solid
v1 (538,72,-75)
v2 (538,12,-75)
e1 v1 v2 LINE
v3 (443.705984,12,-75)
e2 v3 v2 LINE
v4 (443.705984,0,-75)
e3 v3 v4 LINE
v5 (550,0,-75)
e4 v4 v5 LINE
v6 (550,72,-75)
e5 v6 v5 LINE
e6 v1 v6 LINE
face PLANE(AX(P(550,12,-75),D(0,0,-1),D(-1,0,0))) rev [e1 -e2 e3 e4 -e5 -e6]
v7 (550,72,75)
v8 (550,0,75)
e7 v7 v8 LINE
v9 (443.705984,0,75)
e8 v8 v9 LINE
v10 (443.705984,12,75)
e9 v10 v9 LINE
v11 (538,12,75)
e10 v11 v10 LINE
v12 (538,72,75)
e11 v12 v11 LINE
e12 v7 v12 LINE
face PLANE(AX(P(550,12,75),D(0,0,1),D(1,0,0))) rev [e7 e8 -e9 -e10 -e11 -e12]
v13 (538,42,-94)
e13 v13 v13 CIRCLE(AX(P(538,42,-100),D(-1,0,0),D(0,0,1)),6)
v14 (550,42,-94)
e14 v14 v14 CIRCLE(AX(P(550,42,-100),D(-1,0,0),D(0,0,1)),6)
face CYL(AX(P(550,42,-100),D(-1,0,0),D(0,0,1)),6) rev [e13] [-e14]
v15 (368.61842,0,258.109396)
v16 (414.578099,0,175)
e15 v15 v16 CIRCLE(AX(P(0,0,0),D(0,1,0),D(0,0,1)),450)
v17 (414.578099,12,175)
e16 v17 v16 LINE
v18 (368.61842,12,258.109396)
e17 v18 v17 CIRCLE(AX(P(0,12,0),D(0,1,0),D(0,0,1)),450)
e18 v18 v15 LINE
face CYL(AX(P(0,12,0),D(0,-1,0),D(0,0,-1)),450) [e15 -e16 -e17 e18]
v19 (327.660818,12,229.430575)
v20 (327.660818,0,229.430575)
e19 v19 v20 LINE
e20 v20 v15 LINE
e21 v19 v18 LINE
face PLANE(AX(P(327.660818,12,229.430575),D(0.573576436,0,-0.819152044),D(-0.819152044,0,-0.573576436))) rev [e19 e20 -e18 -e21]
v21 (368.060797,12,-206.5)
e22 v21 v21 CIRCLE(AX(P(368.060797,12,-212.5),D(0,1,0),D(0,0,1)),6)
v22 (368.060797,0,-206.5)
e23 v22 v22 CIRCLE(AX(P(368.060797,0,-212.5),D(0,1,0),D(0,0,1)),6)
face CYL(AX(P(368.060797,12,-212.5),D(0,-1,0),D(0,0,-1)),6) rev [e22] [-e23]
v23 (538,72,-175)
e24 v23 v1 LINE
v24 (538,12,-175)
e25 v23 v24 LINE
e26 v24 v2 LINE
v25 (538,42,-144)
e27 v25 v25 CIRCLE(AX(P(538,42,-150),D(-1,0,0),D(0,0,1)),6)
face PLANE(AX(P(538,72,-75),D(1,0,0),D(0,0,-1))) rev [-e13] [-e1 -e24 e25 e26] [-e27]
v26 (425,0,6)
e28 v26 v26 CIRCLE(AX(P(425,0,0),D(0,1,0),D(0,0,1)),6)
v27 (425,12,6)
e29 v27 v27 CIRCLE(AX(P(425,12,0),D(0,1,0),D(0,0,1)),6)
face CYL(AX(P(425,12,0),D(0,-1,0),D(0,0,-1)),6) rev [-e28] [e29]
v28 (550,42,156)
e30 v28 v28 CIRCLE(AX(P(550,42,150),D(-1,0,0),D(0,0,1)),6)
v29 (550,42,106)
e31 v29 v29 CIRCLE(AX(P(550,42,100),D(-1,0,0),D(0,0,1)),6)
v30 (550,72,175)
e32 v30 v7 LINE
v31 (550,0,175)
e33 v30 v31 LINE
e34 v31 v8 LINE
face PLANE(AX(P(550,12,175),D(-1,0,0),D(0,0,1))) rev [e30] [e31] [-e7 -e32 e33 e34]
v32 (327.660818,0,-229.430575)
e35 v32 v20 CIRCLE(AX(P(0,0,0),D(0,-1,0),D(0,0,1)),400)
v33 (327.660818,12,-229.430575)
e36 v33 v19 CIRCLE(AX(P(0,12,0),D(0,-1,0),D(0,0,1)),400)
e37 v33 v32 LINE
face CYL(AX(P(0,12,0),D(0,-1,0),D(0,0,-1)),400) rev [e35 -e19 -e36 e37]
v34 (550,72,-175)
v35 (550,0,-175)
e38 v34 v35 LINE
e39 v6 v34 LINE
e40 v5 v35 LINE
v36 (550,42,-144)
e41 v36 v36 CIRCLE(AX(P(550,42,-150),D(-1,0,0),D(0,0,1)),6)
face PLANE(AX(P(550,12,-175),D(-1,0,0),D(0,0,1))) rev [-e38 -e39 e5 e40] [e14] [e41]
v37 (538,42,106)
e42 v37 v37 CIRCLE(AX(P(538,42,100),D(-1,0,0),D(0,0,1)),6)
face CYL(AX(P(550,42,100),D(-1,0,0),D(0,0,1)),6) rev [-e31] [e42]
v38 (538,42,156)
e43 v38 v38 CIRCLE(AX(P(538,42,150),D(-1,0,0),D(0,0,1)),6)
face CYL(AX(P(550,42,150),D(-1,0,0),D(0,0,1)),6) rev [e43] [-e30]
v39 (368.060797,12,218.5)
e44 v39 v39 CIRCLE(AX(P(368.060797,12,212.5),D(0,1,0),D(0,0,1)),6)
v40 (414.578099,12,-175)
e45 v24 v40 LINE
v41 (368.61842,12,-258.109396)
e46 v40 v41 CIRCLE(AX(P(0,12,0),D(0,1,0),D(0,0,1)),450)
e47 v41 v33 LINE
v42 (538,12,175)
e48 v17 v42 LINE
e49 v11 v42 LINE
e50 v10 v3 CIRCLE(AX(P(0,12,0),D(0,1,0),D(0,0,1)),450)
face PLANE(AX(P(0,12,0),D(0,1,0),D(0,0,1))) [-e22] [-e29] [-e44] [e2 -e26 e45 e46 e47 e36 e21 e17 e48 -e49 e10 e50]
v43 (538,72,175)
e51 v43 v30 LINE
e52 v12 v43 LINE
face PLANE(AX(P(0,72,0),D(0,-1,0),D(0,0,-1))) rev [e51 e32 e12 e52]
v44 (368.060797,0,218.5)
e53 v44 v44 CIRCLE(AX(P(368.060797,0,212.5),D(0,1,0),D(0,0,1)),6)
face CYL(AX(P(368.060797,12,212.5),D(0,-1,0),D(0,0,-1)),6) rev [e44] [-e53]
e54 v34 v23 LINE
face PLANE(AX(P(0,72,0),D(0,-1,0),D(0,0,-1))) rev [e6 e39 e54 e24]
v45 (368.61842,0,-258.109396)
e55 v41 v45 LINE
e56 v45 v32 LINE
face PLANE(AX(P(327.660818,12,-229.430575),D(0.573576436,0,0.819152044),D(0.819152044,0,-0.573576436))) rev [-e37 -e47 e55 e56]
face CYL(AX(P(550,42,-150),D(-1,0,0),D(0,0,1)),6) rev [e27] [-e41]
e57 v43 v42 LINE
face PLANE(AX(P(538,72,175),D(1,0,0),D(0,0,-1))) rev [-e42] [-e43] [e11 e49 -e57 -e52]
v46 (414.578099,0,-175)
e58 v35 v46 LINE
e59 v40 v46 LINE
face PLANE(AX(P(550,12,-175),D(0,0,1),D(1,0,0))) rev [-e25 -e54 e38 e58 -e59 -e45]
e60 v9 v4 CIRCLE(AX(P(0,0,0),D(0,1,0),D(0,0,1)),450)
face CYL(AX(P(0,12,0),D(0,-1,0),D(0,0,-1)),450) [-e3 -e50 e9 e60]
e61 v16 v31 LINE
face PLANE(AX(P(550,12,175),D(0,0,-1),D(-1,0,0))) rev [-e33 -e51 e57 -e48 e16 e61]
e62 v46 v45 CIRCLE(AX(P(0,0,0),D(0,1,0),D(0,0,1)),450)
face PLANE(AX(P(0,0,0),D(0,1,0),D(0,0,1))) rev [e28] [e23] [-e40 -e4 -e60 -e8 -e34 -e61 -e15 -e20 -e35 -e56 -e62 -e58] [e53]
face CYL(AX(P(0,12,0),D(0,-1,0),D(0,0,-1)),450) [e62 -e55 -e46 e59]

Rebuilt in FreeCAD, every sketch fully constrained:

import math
import FreeCAD as App
import Part
import Sketcher
from FreeCAD import Vector
Q = App.Units.Quantity


def add_polygon(sketch, points):
    """Adds a closed chain of lines whose ends are joined by coincident constraints."""
    first, n = sketch.GeometryCount, len(points)
    for a, b in zip(points, points[1:] + points[:1]):
        sketch.addGeometry(Part.LineSegment(App.Vector(*a, 0), App.Vector(*b, 0)), False)
    for i in range(n):
        sketch.addConstraint(Sketcher.Constraint("Coincident", first + i, 2, first + (i + 1) % n, 1))

doc = App.newDocument("Part")
params = doc.addObject("Spreadsheet::Sheet", "Params")
for row, (alias, value) in enumerate([
    ("sketch1_diameter", "12 mm"),
    ("sketch1_radius", "450 mm"),
    ("sketch1_radius2", "400 mm"),
    ("sketch1_height", "100 mm"),
    ("pad1_length", "12 mm"),
    ("sketch2_width", "12 mm"),
    ("sketch2_height", "100 mm"),
    ("pad2_length", "60 mm"),
    ("sketch3_diameter", "12 mm"),
], start=1):
    params.set(f"A{row}", alias)
    params.set(f"B{row}", "=" + value)
    params.setAlias(f"B{row}", alias)

body = doc.addObject("PartDesign::Body", "Body")

# Sketch on XZ plane
sketch1 = doc.addObject("Sketcher::SketchObject", "Sketch")
body.addObject(sketch1)
sketch1.AttachmentSupport = (doc.XZ_Plane, [""])
sketch1.MapMode = "FlatFace"
sketch1.addGeometry([
    Part.LineSegment(Vector(550, -75, 0), Vector(550, -175, 0)),  # 0
    Part.LineSegment(Vector(550, -175, 0), Vector(415, -175, 0)),  # 1
    Part.ArcOfCircle(Part.Circle(Vector(0, 0, 0), Vector(0, 0, 1), 450), math.radians(-35), math.radians(-22.89)),  # 2
    Part.LineSegment(Vector(369, -258, 0), Vector(328, -229, 0)),  # 3
    Part.ArcOfCircle(Part.Circle(Vector(0, 0, 0), Vector(0, 0, 1), 400), math.radians(-35), math.radians(35)),  # 4
    Part.LineSegment(Vector(328, 229, 0), Vector(369, 258, 0)),  # 5
    Part.ArcOfCircle(Part.Circle(Vector(0, 0, 0), Vector(0, 0, 1), 450), math.radians(22.89), math.radians(35)),  # 6
    Part.LineSegment(Vector(415, 175, 0), Vector(550, 175, 0)),  # 7
    Part.LineSegment(Vector(550, 175, 0), Vector(550, 75, 0)),  # 8
    Part.LineSegment(Vector(550, 75, 0), Vector(444, 75, 0)),  # 9
    Part.ArcOfCircle(Part.Circle(Vector(0, 0, 0), Vector(0, 0, 1), 450), math.radians(-9.59), math.radians(9.59)),  # 10
    Part.LineSegment(Vector(444, -75, 0), Vector(550, -75, 0)),  # 11
    Part.Circle(Vector(368, 212, 0), Vector(0, 0, 1), 6),  # 12
    Part.Circle(Vector(425, 0, 0), Vector(0, 0, 1), 6),  # 13
    Part.Circle(Vector(368, -212, 0), Vector(0, 0, 1), 6),  # 14
], False)
sketch1.addConstraint([
    Sketcher.Constraint("Coincident", 0, 2, 1, 1),
    Sketcher.Constraint("Coincident", 1, 2, 2, 2),
    Sketcher.Constraint("Coincident", 2, 1, 3, 1),
    Sketcher.Constraint("Coincident", 3, 2, 4, 1),
    Sketcher.Constraint("Coincident", 4, 2, 5, 1),
    Sketcher.Constraint("Coincident", 5, 2, 6, 2),
    Sketcher.Constraint("Coincident", 6, 1, 7, 1),
    Sketcher.Constraint("Coincident", 7, 2, 8, 1),
    Sketcher.Constraint("Coincident", 8, 2, 9, 1),
    Sketcher.Constraint("Coincident", 9, 2, 10, 2),
    Sketcher.Constraint("Coincident", 10, 1, 11, 1),
    Sketcher.Constraint("Coincident", 11, 2, 0, 1),
    Sketcher.Constraint("Vertical", 0),
    Sketcher.Constraint("Horizontal", 1),
    Sketcher.Constraint("Horizontal", 7),
    Sketcher.Constraint("Vertical", 8),
    Sketcher.Constraint("Horizontal", 9),
    Sketcher.Constraint("Horizontal", 11),
    Sketcher.Constraint("Coincident", 2, 3, -1, 1),
    Sketcher.Constraint("Coincident", 4, 3, -1, 1),
    Sketcher.Constraint("Coincident", 6, 3, -1, 1),
    Sketcher.Constraint("Coincident", 10, 3, -1, 1),
    Sketcher.Constraint("Equal", 2, 6),
    Sketcher.Constraint("Equal", 6, 10),
    Sketcher.Constraint("Equal", 12, 13),
    Sketcher.Constraint("Equal", 13, 14),
    Sketcher.Constraint("Symmetric", 12, 3, 14, 3, -1),
    Sketcher.Constraint("Symmetric", 0, 2, 7, 2, -1),
    Sketcher.Constraint("PointOnObject", 13, 3, -1),
    Sketcher.Constraint("Vertical", 3, 2, 4, 2),
    Sketcher.Constraint("Vertical", 2, 1, 5, 2),
    Sketcher.Constraint("Equal", 9, 11),
    Sketcher.Constraint("Diameter", 12, 12.0),
    Sketcher.Constraint("Radius", 2, 450.0),
    Sketcher.Constraint("Radius", 4, 400.0),
    Sketcher.Constraint("DistanceY", 0, 2, 0, 1, 100.0),
    Sketcher.Constraint("Angle", 3, Q("145 deg")),
    Sketcher.Constraint("DistanceX", -1, 1, 13, 3, 425.0),
    Sketcher.Constraint("DistanceX", -1, 1, 0, 2, 550.0),
    Sketcher.Constraint("DistanceY", 0, 2, -1, 1, 175.0),
    Sketcher.Constraint("DistanceY", -1, 1, 12, 3, 212.5),
    Sketcher.Constraint("DistanceX", -1, 1, 5, 2, 368.61842),
    Sketcher.Constraint("DistanceX", 3, 2, 14, 3, 40.399979),
])
sketch1.setExpression("Constraints[32]", "Params.sketch1_diameter")
sketch1.setExpression("Constraints[33]", "Params.sketch1_radius")
sketch1.setExpression("Constraints[34]", "Params.sketch1_radius2")
sketch1.setExpression("Constraints[35]", "Params.sketch1_height")
pad1 = doc.addObject("PartDesign::Pad", "Pad")
body.addObject(pad1)
pad1.Profile = sketch1
pad1.setExpression("Length", "Params.pad1_length")
pad1.Reversed = True

# Sketch on XZ plane
sketch2 = doc.addObject("Sketcher::SketchObject", "Sketch001")
body.addObject(sketch2)
sketch2.AttachmentSupport = (doc.XZ_Plane, [""])
sketch2.MapMode = "FlatFace"
sketch2.AttachmentOffset = App.Placement(Vector(0, 0, -12), App.Rotation())
add_polygon(sketch2, [(538, -175), (538, -75), (550, -75), (550, -175)])  # lines 0-3
add_polygon(sketch2, [(538, 75), (538, 175), (550, 175), (550, 75)])  # lines 4-7
sketch2.addConstraint([
    Sketcher.Constraint("Vertical", 0),
    Sketcher.Constraint("Horizontal", 1),
    Sketcher.Constraint("Vertical", 2),
    Sketcher.Constraint("Horizontal", 3),
    Sketcher.Constraint("Vertical", 4),
    Sketcher.Constraint("Horizontal", 5),
    Sketcher.Constraint("Vertical", 6),
    Sketcher.Constraint("Horizontal", 7),
    Sketcher.Constraint("Symmetric", 3, 2, 4, 2, -1),
    Sketcher.Constraint("Symmetric", 1, 2, 6, 2, -1),
    Sketcher.Constraint("DistanceX", 1, 1, 1, 2, 12.0),
    Sketcher.Constraint("DistanceY", 0, 1, 0, 2, 100.0),
    Sketcher.Constraint("DistanceX", -1, 1, 0, 2, 538.0),
    Sketcher.Constraint("DistanceY", 0, 2, -1, 1, 75.0),
])
sketch2.setExpression("Constraints[18]", "Params.sketch2_width")
sketch2.setExpression("Constraints[19]", "Params.sketch2_height")
pad2 = doc.addObject("PartDesign::Pad", "Pad001")
body.addObject(pad2)
pad2.Profile = sketch2
pad2.setExpression("Length", "Params.pad2_length")
pad2.Reversed = True

# Sketch on YZ plane
sketch3 = doc.addObject("Sketcher::SketchObject", "Sketch002")
body.addObject(sketch3)
sketch3.AttachmentSupport = (doc.YZ_Plane, [""])
sketch3.MapMode = "FlatFace"
sketch3.AttachmentOffset = App.Placement(Vector(0, 0, 538), App.Rotation())
sketch3.addGeometry([
    Part.Circle(Vector(42, -150, 0), Vector(0, 0, 1), 6),
    Part.Circle(Vector(42, -100, 0), Vector(0, 0, 1), 6),
    Part.Circle(Vector(42, 100, 0), Vector(0, 0, 1), 6),
    Part.Circle(Vector(42, 150, 0), Vector(0, 0, 1), 6),
], False)
sketch3.addConstraint([
    Sketcher.Constraint("Equal", 0, 1),
    Sketcher.Constraint("Equal", 1, 2),
    Sketcher.Constraint("Equal", 2, 3),
    Sketcher.Constraint("Symmetric", 1, 3, 2, 3, -1),
    Sketcher.Constraint("Symmetric", 0, 3, 3, 3, -1),
    Sketcher.Constraint("Vertical", 0, 3, 1, 3),
    Sketcher.Constraint("Diameter", 0, 12.0),
    Sketcher.Constraint("DistanceX", -1, 1, 0, 3, 42.0),
    Sketcher.Constraint("DistanceY", 0, 3, -1, 1, 150.0),
    Sketcher.Constraint("DistanceY", 1, 3, -1, 1, 100.0),
])
sketch3.setExpression("Constraints[6]", "Params.sketch3_diameter")
pocket1 = doc.addObject("PartDesign::Pocket", "Pocket")
body.addObject(pocket1)
pocket1.Profile = sketch3
pocket1.Type = "ThroughAll"
pocket1.Reversed = True

doc.recompute()
